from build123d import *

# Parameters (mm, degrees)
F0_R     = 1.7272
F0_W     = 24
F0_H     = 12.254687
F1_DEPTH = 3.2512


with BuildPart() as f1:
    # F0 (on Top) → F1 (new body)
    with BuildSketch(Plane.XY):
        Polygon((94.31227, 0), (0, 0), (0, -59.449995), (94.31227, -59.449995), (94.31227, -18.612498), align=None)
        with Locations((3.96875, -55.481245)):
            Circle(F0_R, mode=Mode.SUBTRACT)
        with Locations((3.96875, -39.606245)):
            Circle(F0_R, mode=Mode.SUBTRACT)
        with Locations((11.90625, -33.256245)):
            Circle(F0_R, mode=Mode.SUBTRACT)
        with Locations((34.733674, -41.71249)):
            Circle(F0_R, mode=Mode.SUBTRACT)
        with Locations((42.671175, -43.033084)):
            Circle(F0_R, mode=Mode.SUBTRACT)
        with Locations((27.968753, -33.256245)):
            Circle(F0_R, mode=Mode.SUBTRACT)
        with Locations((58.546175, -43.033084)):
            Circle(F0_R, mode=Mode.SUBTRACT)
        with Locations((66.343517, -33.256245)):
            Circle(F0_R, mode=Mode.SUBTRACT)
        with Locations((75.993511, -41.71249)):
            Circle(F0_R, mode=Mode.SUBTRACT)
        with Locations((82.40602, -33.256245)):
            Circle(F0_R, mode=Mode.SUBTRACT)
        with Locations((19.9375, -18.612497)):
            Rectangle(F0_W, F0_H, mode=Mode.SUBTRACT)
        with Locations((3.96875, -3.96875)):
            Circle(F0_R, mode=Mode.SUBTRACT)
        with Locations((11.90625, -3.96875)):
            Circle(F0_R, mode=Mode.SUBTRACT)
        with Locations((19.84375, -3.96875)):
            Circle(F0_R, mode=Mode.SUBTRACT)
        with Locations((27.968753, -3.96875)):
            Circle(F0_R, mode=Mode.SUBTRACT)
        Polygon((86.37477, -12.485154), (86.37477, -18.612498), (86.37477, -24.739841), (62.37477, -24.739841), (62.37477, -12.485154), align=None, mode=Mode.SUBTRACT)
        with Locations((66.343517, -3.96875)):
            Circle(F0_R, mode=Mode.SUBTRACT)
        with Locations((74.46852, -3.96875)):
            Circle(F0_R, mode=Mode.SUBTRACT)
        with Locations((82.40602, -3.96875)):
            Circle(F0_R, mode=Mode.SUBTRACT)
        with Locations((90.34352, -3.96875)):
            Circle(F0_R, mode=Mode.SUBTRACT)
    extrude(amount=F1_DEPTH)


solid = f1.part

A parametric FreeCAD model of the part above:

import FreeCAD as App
import Part
import Sketcher
from FreeCAD import Vector
Q = App.Units.Quantity

doc = App.newDocument("Part")
body = doc.addObject("PartDesign::Body", "Body")

# Sketch on XY plane
sketch1 = body.newObject("Sketcher::SketchObject", "Sketch")
sketch1.AttachmentSupport = (doc.getObject("XY_Plane"), [""])
sketch1.MapMode = "FlatFace"
sketch1.addGeometry(Part.LineSegment(Vector(94.3, 0, 0), Vector(0, 0, 0)), False)
sketch1.addGeometry(Part.LineSegment(Vector(0, 0, 0), Vector(0, -59.4, 0)), False)
sketch1.addGeometry(Part.LineSegment(Vector(0, -59.4, 0), Vector(94.3, -59.4, 0)), False)
sketch1.addGeometry(Part.LineSegment(Vector(94.3, -59.4, 0), Vector(94.3, 0, 0)), False)
sketch1.addGeometry(Part.Circle(Vector(4, -55.5, 0), Vector(0, 0, 1), 1.7), False)
sketch1.addGeometry(Part.Circle(Vector(4, -39.6, 0), Vector(0, 0, 1), 1.7), False)
sketch1.addGeometry(Part.Circle(Vector(11.9, -33.3, 0), Vector(0, 0, 1), 1.7), False)
sketch1.addGeometry(Part.Circle(Vector(34.7, -41.7, 0), Vector(0, 0, 1), 1.7), False)
sketch1.addGeometry(Part.Circle(Vector(42.7, -43, 0), Vector(0, 0, 1), 1.7), False)
sketch1.addGeometry(Part.Circle(Vector(28, -33.3, 0), Vector(0, 0, 1), 1.7), False)
sketch1.addGeometry(Part.Circle(Vector(58.5, -43, 0), Vector(0, 0, 1), 1.7), False)
sketch1.addGeometry(Part.Circle(Vector(66.3, -33.3, 0), Vector(0, 0, 1), 1.7), False)
sketch1.addGeometry(Part.Circle(Vector(76, -41.7, 0), Vector(0, 0, 1), 1.7), False)
sketch1.addGeometry(Part.Circle(Vector(82.4, -33.3, 0), Vector(0, 0, 1), 1.7), False)
sketch1.addGeometry(Part.LineSegment(Vector(31.9, -24.7, 0), Vector(7.9, -24.7, 0)), False)
sketch1.addGeometry(Part.LineSegment(Vector(7.9, -24.7, 0), Vector(7.9, -12.5, 0)), False)
sketch1.addGeometry(Part.LineSegment(Vector(7.9, -12.5, 0), Vector(31.9, -12.5, 0)), False)
sketch1.addGeometry(Part.LineSegment(Vector(31.9, -12.5, 0), Vector(31.9, -24.7, 0)), False)
sketch1.addGeometry(Part.Circle(Vector(4, -4, 0), Vector(0, 0, 1), 1.7), False)
sketch1.addGeometry(Part.Circle(Vector(11.9, -4, 0), Vector(0, 0, 1), 1.7), False)
sketch1.addGeometry(Part.Circle(Vector(19.8, -4, 0), Vector(0, 0, 1), 1.7), False)
sketch1.addGeometry(Part.Circle(Vector(28, -4, 0), Vector(0, 0, 1), 1.7), False)
sketch1.addGeometry(Part.LineSegment(Vector(62.4, -12.5, 0), Vector(86.4, -12.5, 0)), False)
sketch1.addGeometry(Part.LineSegment(Vector(86.4, -12.5, 0), Vector(86.4, -24.7, 0)), False)
sketch1.addGeometry(Part.LineSegment(Vector(86.4, -24.7, 0), Vector(62.4, -24.7, 0)), False)
sketch1.addGeometry(Part.LineSegment(Vector(62.4, -24.7, 0), Vector(62.4, -12.5, 0)), False)
sketch1.addGeometry(Part.Circle(Vector(66.3, -4, 0), Vector(0, 0, 1), 1.7), False)
sketch1.addGeometry(Part.Circle(Vector(74.5, -4, 0), Vector(0, 0, 1), 1.7), False)
sketch1.addGeometry(Part.Circle(Vector(82.4, -4, 0), Vector(0, 0, 1), 1.7), False)
sketch1.addGeometry(Part.Circle(Vector(90.3, -4, 0), Vector(0, 0, 1), 1.7), False)
sketch1.addConstraint(Sketcher.Constraint("Coincident", 0, 2, 1, 1))
sketch1.addConstraint(Sketcher.Constraint("Coincident", 1, 2, 2, 1))
sketch1.addConstraint(Sketcher.Constraint("Coincident", 2, 2, 3, 1))
sketch1.addConstraint(Sketcher.Constraint("Coincident", 3, 2, 0, 1))
sketch1.addConstraint(Sketcher.Constraint("Coincident", 14, 2, 15, 1))
sketch1.addConstraint(Sketcher.Constraint("Coincident", 15, 2, 16, 1))
sketch1.addConstraint(Sketcher.Constraint("Coincident", 16, 2, 17, 1))
sketch1.addConstraint(Sketcher.Constraint("Coincident", 17, 2, 14, 1))
sketch1.addConstraint(Sketcher.Constraint("Coincident", 22, 2, 23, 1))
sketch1.addConstraint(Sketcher.Constraint("Coincident", 23, 2, 24, 1))
sketch1.addConstraint(Sketcher.Constraint("Coincident", 24, 2, 25, 1))
sketch1.addConstraint(Sketcher.Constraint("Coincident", 25, 2, 22, 1))
sketch1.addConstraint(Sketcher.Constraint("Horizontal", 0))
sketch1.addConstraint(Sketcher.Constraint("Vertical", 1))
sketch1.addConstraint(Sketcher.Constraint("Horizontal", 2))
sketch1.addConstraint(Sketcher.Constraint("Vertical", 3))
sketch1.addConstraint(Sketcher.Constraint("Horizontal", 14))
sketch1.addConstraint(Sketcher.Constraint("Vertical", 15))
sketch1.addConstraint(Sketcher.Constraint("Horizontal", 16))
sketch1.addConstraint(Sketcher.Constraint("Vertical", 17))
sketch1.addConstraint(Sketcher.Constraint("Horizontal", 22))
sketch1.addConstraint(Sketcher.Constraint("Vertical", 23))
sketch1.addConstraint(Sketcher.Constraint("Horizontal", 24))
sketch1.addConstraint(Sketcher.Constraint("Vertical", 25))
sketch1.addConstraint(Sketcher.Constraint("Coincident", 0, 2, -1, 1))
sketch1.addConstraint(Sketcher.Constraint("Equal", 4, 5))
sketch1.addConstraint(Sketcher.Constraint("Equal", 5, 6))
sketch1.addConstraint(Sketcher.Constraint("Equal", 6, 7))
sketch1.addConstraint(Sketcher.Constraint("Equal", 7, 8))
sketch1.addConstraint(Sketcher.Constraint("Equal", 8, 9))
sketch1.addConstraint(Sketcher.Constraint("Equal", 9, 10))
sketch1.addConstraint(Sketcher.Constraint("Equal", 10, 11))
sketch1.addConstraint(Sketcher.Constraint("Equal", 11, 12))
sketch1.addConstraint(Sketcher.Constraint("Equal", 12, 13))
sketch1.addConstraint(Sketcher.Constraint("Equal", 13, 18))
sketch1.addConstraint(Sketcher.Constraint("Equal", 18, 19))
sketch1.addConstraint(Sketcher.Constraint("Equal", 19, 20))
sketch1.addConstraint(Sketcher.Constraint("Equal", 20, 21))
sketch1.addConstraint(Sketcher.Constraint("Equal", 21, 26))
sketch1.addConstraint(Sketcher.Constraint("Equal", 26, 27))
sketch1.addConstraint(Sketcher.Constraint("Equal", 27, 28))
sketch1.addConstraint(Sketcher.Constraint("Equal", 28, 29))
sketch1.addConstraint(Sketcher.Constraint("Horizontal", 6, 3, 9, 3))
sketch1.addConstraint(Sketcher.Constraint("Horizontal", 8, 3, 10, 3))
sketch1.addConstraint(Sketcher.Constraint("Horizontal", 9, 3, 11, 3))
sketch1.addConstraint(Sketcher.Constraint("Horizontal", 7, 3, 12, 3))
sketch1.addConstraint(Sketcher.Constraint("Horizontal", 11, 3, 13, 3))
sketch1.addConstraint(Sketcher.Constraint("Horizontal", 18, 3, 19, 3))
sketch1.addConstraint(Sketcher.Constraint("Horizontal", 19, 3, 20, 3))
sketch1.addConstraint(Sketcher.Constraint("Horizontal", 20, 3, 21, 3))
sketch1.addConstraint(Sketcher.Constraint("Horizontal", 21, 3, 26, 3))
sketch1.addConstraint(Sketcher.Constraint("Horizontal", 26, 3, 27, 3))
sketch1.addConstraint(Sketcher.Constraint("Horizontal", 27, 3, 28, 3))
sketch1.addConstraint(Sketcher.Constraint("Horizontal", 28, 3, 29, 3))
sketch1.addConstraint(Sketcher.Constraint("Horizontal", 16, 2, 22, 2))
sketch1.addConstraint(Sketcher.Constraint("Horizontal", 17, 2, 23, 2))
sketch1.addConstraint(Sketcher.Constraint("Vertical", 4, 3, 5, 3))
sketch1.addConstraint(Sketcher.Constraint("Vertical", 5, 3, 18, 3))
sketch1.addConstraint(Sketcher.Constraint("Vertical", 6, 3, 19, 3))
sketch1.addConstraint(Sketcher.Constraint("Vertical", 9, 3, 21, 3))
sketch1.addConstraint(Sketcher.Constraint("Vertical", 11, 3, 26, 3))
sketch1.addConstraint(Sketcher.Constraint("Vertical", 13, 3, 28, 3))
sketch1.addConstraint(Sketcher.Constraint("Equal", 16, 22))
sketch1.addConstraint(Sketcher.Constraint("Diameter", 4, Q("0.136 in")))
sketch1.addConstraint(Sketcher.Constraint("DistanceY", 5, 3, 6, 3, Q("0.25 in")))
sketch1.addConstraint(Sketcher.Constraint("DistanceX", -1, 1, 4, 3, Q("0.15625 in")))
sketch1.addConstraint(Sketcher.Constraint("DistanceX", -1, 1, 6, 3, Q("0.46875 in")))
sketch1.addConstraint(Sketcher.Constraint("DistanceY", 18, 3, -1, 1, Q("0.15625 in")))
sketch1.addConstraint(Sketcher.Constraint("DistanceX", -1, 1, 20, 3, Q("0.78125 in")))
sketch1.addConstraint(Sketcher.Constraint("DistanceX", -1, 1, 14, 2, Q("0.3125 in")))
sketch1.addConstraint(Sketcher.Constraint("DistanceY", 4, 3, 5, 3, Q("0.625 in")))
sketch1.addConstraint(Sketcher.Constraint("DistanceX", 7, 3, 8, 3, Q("0.3125 in")))
sketch1.addConstraint(Sketcher.Constraint("DistanceX", 8, 3, 10, 3, Q("0.625 in")))
sketch1.addConstraint(Sketcher.Constraint("DistanceX", 27, 3, 13, 3, Q("0.3125 in")))
sketch1.addConstraint(Sketcher.Constraint("DistanceX", 28, 3, 29, 3, Q("0.3125 in")))
sketch1.addConstraint(Sketcher.Constraint("DistanceY", 1, 2, 4, 3, Q("0.15625 in")))
sketch1.addConstraint(Sketcher.Constraint("DistanceX", 13, 3, 2, 2, Q("0.46875 in")))
sketch1.addConstraint(Sketcher.Constraint("DistanceX", 21, 3, 16, 2, Q("0.1562499 in")))
sketch1.addConstraint(Sketcher.Constraint("DistanceX", 28, 3, 22, 2, Q("0.15625 in")))
sketch1.addConstraint(Sketcher.Constraint("DistanceX", 24, 2, 11, 3, Q("0.1562499 in")))
sketch1.addConstraint(Sketcher.Constraint("DistanceX", 14, 2, 14, 1, 24.0))
sketch1.addConstraint(Sketcher.Constraint("DistanceX", 0, 2, 0, 1, 94.31227))
sketch1.addConstraint(Sketcher.Constraint("DistanceY", 1, 2, 1, 1, 59.449995))
sketch1.addConstraint(Sketcher.Constraint("DistanceY", 15, 1, 15, 2, 12.254687))
sketch1.addConstraint(Sketcher.Constraint("DistanceY", 7, 3, -1, 1, 41.71249))
sketch1.addConstraint(Sketcher.Constraint("DistanceX", -1, 1, 12, 3, 75.993511))
sketch1.addConstraint(Sketcher.Constraint("DistanceY", 14, 2, -1, 1, 24.73984))
sketch1.addConstraint(Sketcher.Constraint("DistanceY", 8, 3, 6, 3, 9.776839))
sketch1.addConstraint(Sketcher.Constraint("DistanceX", 9, 3, 7, 3, 6.764921))
pad1 = body.newObject("PartDesign::Pad", "Pad")
pad1.Profile = sketch1
pad1.Length = Q("0.128 in")

doc.recompute()
